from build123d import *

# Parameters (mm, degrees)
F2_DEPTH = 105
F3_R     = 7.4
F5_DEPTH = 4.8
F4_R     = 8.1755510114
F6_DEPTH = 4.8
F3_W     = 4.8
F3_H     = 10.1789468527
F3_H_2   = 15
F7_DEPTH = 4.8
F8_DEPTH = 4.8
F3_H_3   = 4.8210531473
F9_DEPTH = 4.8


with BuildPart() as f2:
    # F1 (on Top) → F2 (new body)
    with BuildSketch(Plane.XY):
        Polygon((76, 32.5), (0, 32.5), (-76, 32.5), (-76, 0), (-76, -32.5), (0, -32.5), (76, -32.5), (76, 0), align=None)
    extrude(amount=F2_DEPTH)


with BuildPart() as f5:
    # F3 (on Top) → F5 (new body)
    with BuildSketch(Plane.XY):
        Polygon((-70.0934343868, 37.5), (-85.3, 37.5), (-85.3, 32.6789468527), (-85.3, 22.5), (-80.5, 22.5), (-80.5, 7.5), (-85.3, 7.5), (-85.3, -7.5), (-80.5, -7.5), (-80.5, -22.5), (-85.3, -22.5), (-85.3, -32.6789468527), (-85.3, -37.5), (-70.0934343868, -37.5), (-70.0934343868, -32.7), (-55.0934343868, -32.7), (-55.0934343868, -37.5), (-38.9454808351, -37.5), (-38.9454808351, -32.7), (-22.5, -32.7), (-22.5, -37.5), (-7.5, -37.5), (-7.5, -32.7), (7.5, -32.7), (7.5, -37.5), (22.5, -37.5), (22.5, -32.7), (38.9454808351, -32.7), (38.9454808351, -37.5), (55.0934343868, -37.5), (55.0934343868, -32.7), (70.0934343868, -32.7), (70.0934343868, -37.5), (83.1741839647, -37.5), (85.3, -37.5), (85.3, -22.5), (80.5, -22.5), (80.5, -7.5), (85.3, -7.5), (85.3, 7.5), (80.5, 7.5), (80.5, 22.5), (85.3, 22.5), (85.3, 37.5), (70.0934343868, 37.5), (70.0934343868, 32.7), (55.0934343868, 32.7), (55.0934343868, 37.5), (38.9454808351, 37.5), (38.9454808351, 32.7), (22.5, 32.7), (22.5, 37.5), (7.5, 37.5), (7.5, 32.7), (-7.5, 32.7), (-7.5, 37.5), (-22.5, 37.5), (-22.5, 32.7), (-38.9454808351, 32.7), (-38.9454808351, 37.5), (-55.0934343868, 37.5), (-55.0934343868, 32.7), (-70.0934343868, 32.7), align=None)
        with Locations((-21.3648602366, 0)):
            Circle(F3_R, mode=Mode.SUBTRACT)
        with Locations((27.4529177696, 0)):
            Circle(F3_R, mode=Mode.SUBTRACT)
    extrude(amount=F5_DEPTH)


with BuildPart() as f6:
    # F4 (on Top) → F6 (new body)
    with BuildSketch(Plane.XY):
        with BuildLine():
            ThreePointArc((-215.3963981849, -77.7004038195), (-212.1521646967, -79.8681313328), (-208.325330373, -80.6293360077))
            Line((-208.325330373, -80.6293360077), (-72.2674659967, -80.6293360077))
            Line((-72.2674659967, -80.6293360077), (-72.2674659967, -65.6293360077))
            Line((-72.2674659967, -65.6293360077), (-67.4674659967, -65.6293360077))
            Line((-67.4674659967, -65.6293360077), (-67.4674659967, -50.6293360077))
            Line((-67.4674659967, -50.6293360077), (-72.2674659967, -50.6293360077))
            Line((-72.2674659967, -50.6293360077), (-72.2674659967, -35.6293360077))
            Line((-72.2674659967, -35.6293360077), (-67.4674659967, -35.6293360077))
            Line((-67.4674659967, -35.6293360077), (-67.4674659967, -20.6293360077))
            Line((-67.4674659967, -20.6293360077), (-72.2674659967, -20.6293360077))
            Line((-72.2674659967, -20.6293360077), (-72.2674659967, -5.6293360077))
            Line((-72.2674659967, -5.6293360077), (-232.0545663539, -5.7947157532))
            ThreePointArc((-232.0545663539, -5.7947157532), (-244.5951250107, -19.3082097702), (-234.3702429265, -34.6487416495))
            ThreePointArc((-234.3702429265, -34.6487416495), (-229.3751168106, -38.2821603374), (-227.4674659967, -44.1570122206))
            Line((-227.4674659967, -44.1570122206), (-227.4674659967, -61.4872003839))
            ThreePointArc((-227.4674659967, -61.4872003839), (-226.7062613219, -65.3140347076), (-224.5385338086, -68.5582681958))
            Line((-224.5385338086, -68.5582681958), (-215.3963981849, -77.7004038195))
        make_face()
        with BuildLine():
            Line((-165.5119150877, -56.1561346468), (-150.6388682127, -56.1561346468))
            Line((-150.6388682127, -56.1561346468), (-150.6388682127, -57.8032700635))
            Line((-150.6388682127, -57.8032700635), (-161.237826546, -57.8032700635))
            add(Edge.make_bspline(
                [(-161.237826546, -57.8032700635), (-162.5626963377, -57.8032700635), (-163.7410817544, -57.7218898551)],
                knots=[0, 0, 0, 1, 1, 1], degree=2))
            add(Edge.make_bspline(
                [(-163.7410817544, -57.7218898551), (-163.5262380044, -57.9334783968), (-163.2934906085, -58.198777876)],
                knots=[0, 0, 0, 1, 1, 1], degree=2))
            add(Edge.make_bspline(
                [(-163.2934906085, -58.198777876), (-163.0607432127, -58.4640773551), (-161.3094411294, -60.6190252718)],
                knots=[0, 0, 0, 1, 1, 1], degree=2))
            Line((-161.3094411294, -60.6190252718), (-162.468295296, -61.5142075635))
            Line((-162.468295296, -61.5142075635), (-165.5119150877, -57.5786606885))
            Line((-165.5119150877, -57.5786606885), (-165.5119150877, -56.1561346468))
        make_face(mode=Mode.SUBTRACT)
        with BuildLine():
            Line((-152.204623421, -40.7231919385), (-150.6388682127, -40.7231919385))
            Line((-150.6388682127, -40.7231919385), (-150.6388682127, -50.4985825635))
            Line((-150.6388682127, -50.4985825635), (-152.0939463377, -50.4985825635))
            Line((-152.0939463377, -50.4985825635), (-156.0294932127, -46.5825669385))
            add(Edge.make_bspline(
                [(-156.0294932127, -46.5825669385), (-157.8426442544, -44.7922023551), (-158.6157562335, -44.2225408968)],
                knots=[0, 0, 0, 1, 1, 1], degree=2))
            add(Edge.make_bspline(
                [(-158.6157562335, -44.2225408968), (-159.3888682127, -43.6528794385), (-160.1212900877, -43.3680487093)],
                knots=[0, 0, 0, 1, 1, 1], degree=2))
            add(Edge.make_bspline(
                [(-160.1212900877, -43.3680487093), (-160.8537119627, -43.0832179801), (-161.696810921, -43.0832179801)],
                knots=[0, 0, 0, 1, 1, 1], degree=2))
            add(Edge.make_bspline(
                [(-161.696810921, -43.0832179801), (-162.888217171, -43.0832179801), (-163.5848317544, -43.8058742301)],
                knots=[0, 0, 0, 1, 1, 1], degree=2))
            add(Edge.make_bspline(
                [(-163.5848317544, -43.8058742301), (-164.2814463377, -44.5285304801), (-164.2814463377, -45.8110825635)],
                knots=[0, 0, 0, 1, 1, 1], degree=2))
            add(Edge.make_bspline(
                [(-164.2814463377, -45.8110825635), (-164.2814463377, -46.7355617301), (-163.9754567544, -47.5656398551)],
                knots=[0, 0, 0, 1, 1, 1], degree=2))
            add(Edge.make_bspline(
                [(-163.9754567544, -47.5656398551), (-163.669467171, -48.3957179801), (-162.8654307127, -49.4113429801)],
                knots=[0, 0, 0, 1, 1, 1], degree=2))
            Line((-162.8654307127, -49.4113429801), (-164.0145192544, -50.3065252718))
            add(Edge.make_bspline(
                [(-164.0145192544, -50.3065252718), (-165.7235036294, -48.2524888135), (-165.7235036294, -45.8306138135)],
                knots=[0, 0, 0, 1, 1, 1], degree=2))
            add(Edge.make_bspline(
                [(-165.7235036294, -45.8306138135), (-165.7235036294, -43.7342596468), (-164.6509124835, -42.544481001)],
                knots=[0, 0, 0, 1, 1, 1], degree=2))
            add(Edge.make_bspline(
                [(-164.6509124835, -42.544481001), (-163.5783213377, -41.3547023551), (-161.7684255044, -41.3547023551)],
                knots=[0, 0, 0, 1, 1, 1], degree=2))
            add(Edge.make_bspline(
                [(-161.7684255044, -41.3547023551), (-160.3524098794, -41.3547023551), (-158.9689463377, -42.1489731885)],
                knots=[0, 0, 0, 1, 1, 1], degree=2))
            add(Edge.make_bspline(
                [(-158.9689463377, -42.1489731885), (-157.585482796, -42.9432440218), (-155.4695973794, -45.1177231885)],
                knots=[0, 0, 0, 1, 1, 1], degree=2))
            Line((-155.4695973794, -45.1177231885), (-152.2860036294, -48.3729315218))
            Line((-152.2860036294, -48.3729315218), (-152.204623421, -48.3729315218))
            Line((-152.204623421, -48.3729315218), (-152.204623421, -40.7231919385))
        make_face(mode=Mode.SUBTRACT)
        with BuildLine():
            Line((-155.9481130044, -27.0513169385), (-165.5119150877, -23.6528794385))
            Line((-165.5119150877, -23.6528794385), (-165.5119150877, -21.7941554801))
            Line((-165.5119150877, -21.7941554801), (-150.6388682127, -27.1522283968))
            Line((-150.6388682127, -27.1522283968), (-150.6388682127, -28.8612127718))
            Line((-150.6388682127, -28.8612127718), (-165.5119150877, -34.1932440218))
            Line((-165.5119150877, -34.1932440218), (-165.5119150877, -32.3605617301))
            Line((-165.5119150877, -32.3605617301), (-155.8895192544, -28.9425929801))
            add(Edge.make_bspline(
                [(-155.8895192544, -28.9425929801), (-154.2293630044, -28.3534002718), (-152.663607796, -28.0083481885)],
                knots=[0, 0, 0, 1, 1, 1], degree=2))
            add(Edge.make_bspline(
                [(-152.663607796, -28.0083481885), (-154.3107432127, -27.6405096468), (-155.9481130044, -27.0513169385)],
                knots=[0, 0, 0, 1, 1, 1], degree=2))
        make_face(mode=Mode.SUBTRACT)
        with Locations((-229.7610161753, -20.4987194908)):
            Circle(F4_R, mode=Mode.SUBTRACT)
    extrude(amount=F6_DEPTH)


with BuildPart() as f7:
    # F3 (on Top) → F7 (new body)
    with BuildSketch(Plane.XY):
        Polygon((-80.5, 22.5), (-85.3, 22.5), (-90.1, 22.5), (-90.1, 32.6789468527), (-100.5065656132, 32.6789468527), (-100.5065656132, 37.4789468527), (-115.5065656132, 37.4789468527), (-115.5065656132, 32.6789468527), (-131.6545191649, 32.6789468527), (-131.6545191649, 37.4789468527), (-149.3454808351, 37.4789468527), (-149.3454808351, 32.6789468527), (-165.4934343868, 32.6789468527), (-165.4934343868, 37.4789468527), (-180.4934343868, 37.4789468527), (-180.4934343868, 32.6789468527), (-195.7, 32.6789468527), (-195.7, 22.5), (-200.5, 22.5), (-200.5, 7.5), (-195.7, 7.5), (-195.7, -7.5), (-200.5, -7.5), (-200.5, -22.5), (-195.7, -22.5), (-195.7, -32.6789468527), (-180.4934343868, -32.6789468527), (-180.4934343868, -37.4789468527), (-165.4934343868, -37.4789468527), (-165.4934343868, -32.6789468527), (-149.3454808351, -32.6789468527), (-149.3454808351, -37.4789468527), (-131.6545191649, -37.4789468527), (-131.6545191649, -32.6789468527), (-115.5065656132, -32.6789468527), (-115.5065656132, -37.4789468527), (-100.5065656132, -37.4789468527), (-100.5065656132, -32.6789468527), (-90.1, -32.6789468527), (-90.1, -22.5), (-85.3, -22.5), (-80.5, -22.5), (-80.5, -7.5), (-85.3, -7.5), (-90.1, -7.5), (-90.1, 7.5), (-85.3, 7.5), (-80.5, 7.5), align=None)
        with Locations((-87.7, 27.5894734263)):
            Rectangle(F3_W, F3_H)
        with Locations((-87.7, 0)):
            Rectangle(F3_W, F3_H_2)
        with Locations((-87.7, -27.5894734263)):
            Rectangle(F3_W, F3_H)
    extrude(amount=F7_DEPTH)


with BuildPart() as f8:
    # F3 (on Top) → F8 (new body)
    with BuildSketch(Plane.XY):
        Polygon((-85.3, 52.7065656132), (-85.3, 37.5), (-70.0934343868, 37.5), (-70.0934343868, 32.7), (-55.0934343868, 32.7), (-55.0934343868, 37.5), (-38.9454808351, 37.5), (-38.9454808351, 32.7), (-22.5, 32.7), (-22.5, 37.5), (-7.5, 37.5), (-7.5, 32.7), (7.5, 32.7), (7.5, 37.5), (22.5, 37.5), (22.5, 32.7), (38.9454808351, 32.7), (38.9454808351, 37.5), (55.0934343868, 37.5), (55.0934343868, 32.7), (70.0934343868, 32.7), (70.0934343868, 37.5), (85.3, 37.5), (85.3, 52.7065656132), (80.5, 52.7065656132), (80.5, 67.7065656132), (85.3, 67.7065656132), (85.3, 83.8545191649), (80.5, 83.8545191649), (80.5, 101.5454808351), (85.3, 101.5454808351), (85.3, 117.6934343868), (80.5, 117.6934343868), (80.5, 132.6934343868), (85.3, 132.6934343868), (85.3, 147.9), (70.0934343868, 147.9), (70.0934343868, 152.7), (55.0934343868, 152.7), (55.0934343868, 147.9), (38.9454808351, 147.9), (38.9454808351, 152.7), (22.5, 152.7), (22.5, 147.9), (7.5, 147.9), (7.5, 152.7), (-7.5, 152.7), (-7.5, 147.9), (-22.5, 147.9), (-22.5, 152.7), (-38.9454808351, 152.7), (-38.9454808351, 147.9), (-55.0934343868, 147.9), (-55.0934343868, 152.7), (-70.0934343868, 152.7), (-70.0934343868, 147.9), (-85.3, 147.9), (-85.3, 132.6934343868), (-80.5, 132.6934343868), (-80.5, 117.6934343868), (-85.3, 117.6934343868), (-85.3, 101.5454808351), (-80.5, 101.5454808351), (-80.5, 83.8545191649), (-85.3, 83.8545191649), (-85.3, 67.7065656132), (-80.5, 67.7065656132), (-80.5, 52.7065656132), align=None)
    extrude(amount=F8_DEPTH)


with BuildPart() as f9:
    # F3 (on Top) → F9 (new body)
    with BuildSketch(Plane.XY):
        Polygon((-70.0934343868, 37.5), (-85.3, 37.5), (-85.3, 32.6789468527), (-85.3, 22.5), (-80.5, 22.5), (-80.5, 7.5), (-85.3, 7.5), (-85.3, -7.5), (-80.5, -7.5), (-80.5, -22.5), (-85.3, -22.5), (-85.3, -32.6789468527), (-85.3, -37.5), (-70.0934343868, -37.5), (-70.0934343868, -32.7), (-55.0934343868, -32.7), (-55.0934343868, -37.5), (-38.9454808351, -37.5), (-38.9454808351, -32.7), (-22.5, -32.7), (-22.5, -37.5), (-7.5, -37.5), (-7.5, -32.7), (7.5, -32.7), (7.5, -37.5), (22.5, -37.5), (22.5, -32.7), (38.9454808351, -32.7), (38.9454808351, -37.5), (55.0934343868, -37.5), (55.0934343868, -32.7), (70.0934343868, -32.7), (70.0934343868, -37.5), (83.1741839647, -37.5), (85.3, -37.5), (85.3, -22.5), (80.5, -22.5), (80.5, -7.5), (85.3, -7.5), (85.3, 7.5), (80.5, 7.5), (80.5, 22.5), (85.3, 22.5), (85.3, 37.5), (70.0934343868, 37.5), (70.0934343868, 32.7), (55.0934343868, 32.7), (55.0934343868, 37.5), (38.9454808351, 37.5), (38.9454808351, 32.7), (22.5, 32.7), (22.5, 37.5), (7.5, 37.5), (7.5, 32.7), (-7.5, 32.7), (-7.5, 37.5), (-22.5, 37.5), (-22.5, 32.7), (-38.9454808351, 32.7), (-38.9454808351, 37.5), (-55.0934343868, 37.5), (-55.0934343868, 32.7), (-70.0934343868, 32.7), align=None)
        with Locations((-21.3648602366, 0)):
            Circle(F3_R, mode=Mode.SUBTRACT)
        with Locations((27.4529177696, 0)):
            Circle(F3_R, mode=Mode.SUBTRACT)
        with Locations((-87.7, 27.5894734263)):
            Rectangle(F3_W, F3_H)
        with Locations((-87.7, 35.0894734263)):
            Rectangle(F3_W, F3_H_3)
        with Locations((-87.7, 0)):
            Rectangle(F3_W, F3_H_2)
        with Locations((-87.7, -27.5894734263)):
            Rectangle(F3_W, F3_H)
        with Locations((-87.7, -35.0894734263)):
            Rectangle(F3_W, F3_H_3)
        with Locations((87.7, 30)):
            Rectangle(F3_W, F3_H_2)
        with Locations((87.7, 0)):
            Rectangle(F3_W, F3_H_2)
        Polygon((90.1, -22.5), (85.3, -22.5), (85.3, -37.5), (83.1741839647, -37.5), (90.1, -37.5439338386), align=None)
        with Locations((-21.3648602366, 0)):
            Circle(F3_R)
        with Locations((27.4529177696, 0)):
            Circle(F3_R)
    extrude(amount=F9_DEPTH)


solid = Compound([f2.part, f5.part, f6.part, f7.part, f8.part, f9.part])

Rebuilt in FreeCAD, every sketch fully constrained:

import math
import FreeCAD as App
import Part
import Sketcher
Q = App.Units.Quantity


def add_polygon(sketch, points):
    """Adds a closed chain of lines whose ends are joined by coincident constraints."""
    first, n = sketch.GeometryCount, len(points)
    for a, b in zip(points, points[1:] + points[:1]):
        sketch.addGeometry(Part.LineSegment(App.Vector(*a, 0), App.Vector(*b, 0)), False)
    for i in range(n):
        sketch.addConstraint(Sketcher.Constraint("Coincident", first + i, 2, first + (i + 1) % n, 1))

doc = App.newDocument("Part")
body = doc.addObject("PartDesign::Body", "Body")

# Sketch on XY plane
sketch1 = doc.addObject("Sketcher::SketchObject", "Sketch")
body.addObject(sketch1)
sketch1.AttachmentSupport = (doc.XY_Plane, [""])
sketch1.MapMode = "FlatFace"
add_polygon(sketch1, [(76, 32), (-76, 32), (-76, -32), (76, -32)])  # lines 0-3
sketch1.addConstraint([
    Sketcher.Constraint("Horizontal", 0),
    Sketcher.Constraint("Vertical", 1),
    Sketcher.Constraint("Horizontal", 2),
    Sketcher.Constraint("Vertical", 3),
    Sketcher.Constraint("Symmetric", 0, 2, 2, 2, -1, 1),
    Sketcher.Constraint("DistanceX", 0, 2, 0, 1, 152.0),
    Sketcher.Constraint("DistanceY", 1, 2, 1, 1, 65.0),
])
pad1 = doc.addObject("PartDesign::Pad", "Pad")
body.addObject(pad1)
pad1.Profile = sketch1
pad1.Length = 105
body2 = doc.addObject("PartDesign::Body", "Body001")

# Sketch on XY plane
sketch2 = doc.addObject("Sketcher::SketchObject", "Sketch001")
body2.addObject(sketch2)
sketch2.AttachmentSupport = (doc.getObject("XY_Plane001"), [""])
sketch2.MapMode = "FlatFace"
add_polygon(sketch2, [(-70.1, 37.5), (-85.3, 37.5), (-85.3, 22.5), (-80.5, 22.5), (-80.5, 7.5), (-85.3, 7.5), (-85.3, -7.5), (-80.5, -7.5), (-80.5, -22.5), (-85.3, -22.5), (-85.3, -37.5), (-70.1, -37.5), (-70.1, -32.7), (-55.1, -32.7), (-55.1, -37.5), (-38.9, -37.5), (-38.9, -32.7), (-22.5, -32.7), (-22.5, -37.5), (-7.5, -37.5), (-7.5, -32.7), (7.5, -32.7), (7.5, -37.5), (22.5, -37.5), (22.5, -32.7), (38.9, -32.7), (38.9, -37.5), (55.1, -37.5), (55.1, -32.7), (70.1, -32.7), (70.1, -37.5), (85.3, -37.5), (85.3, -22.5), (80.5, -22.5), (80.5, -7.5), (85.3, -7.5), (85.3, 7.5), (80.5, 7.5), (80.5, 22.5), (85.3, 22.5), (85.3, 37.5), (70.1, 37.5), (70.1, 32.7), (55.1, 32.7), (55.1, 37.5), (38.9, 37.5), (38.9, 32.7), (22.5, 32.7), (22.5, 37.5), (7.5, 37.5), (7.5, 32.7), (-7.5, 32.7), (-7.5, 37.5), (-22.5, 37.5), (-22.5, 32.7), (-38.9, 32.7), (-38.9, 37.5), (-55.1, 37.5), (-55.1, 32.7), (-70.1, 32.7)])  # lines 0-59
sketch2.addGeometry(Part.Circle(App.Vector(-21.4, 0, 0), App.Vector(0, 0, 1), 7.4), False)  # 60
sketch2.addGeometry(Part.Circle(App.Vector(27.5, 0, 0), App.Vector(0, 0, 1), 7.4), False)  # 61
sketch2.addConstraint([
    Sketcher.Constraint("Horizontal", 0),
    Sketcher.Constraint("Vertical", 1),
    Sketcher.Constraint("Horizontal", 2),
    Sketcher.Constraint("Vertical", 3),
    Sketcher.Constraint("Horizontal", 4),
    Sketcher.Constraint("Vertical", 5),
    Sketcher.Constraint("Horizontal", 6),
    Sketcher.Constraint("Vertical", 7),
    Sketcher.Constraint("Horizontal", 8),
    Sketcher.Constraint("Vertical", 9),
    Sketcher.Constraint("Horizontal", 10),
    Sketcher.Constraint("Vertical", 11),
    Sketcher.Constraint("Horizontal", 12),
    Sketcher.Constraint("Vertical", 13),
    Sketcher.Constraint("Horizontal", 14),
    Sketcher.Constraint("Vertical", 15),
    Sketcher.Constraint("Horizontal", 16),
    Sketcher.Constraint("Vertical", 17),
    Sketcher.Constraint("Horizontal", 18),
    Sketcher.Constraint("Vertical", 19),
    Sketcher.Constraint("Horizontal", 20),
    Sketcher.Constraint("Vertical", 21),
    Sketcher.Constraint("Horizontal", 22),
    Sketcher.Constraint("Vertical", 23),
    Sketcher.Constraint("Horizontal", 24),
    Sketcher.Constraint("Vertical", 25),
    Sketcher.Constraint("Horizontal", 26),
    Sketcher.Constraint("Vertical", 27),
    Sketcher.Constraint("Horizontal", 28),
    Sketcher.Constraint("Vertical", 29),
    Sketcher.Constraint("Horizontal", 30),
    Sketcher.Constraint("Vertical", 31),
    Sketcher.Constraint("Horizontal", 32),
    Sketcher.Constraint("Vertical", 33),
    Sketcher.Constraint("Horizontal", 34),
    Sketcher.Constraint("Vertical", 35),
    Sketcher.Constraint("Horizontal", 36),
    Sketcher.Constraint("Vertical", 37),
    Sketcher.Constraint("Horizontal", 38),
    Sketcher.Constraint("Vertical", 39),
    Sketcher.Constraint("Horizontal", 40),
    Sketcher.Constraint("Vertical", 41),
    Sketcher.Constraint("Horizontal", 42),
    Sketcher.Constraint("Vertical", 43),
    Sketcher.Constraint("Horizontal", 44),
    Sketcher.Constraint("Vertical", 45),
    Sketcher.Constraint("Horizontal", 46),
    Sketcher.Constraint("Vertical", 47),
    Sketcher.Constraint("Horizontal", 48),
    Sketcher.Constraint("Vertical", 49),
    Sketcher.Constraint("Horizontal", 50),
    Sketcher.Constraint("Vertical", 51),
    Sketcher.Constraint("Horizontal", 52),
    Sketcher.Constraint("Vertical", 53),
    Sketcher.Constraint("Horizontal", 54),
    Sketcher.Constraint("Vertical", 55),
    Sketcher.Constraint("Horizontal", 56),
    Sketcher.Constraint("Vertical", 57),
    Sketcher.Constraint("Horizontal", 58),
    Sketcher.Constraint("Vertical", 59),
    Sketcher.Constraint("Equal", 60, 61),
    Sketcher.Constraint("Symmetric", 0, 2, 30, 2, -1, 1),
    Sketcher.Constraint("Symmetric", 2, 2, 32, 2, -1, 1),
    Sketcher.Constraint("Symmetric", 4, 2, 34, 2, -1, 1),
    Sketcher.Constraint("Symmetric", 6, 2, 36, 2, -1, 1),
    Sketcher.Constraint("Symmetric", 8, 2, 38, 2, -1, 1),
    Sketcher.Constraint("Symmetric", 10, 2, 40, 2, -1, 1),
    Sketcher.Constraint("Symmetric", 12, 2, 42, 2, -1, 1),
    Sketcher.Constraint("Symmetric", 14, 2, 44, 2, -1, 1),
    Sketcher.Constraint("Symmetric", 16, 2, 46, 2, -1, 1),
    Sketcher.Constraint("Symmetric", 18, 2, 48, 2, -1, 1),
    Sketcher.Constraint("Symmetric", 20, 2, 50, 2, -1, 1),
    Sketcher.Constraint("Symmetric", 22, 2, 52, 2, -1, 1),
    Sketcher.Constraint("Symmetric", 24, 2, 54, 2, -1, 1),
    Sketcher.Constraint("Symmetric", 26, 2, 56, 2, -1, 1),
    Sketcher.Constraint("Symmetric", 28, 2, 58, 2, -1, 1),
    Sketcher.Constraint("Symmetric", 18, 2, 21, 2, -2),
    Sketcher.Constraint("Symmetric", 16, 2, 23, 2, -2),
    Sketcher.Constraint("Symmetric", 14, 2, 25, 2, -2),
    Sketcher.Constraint("Symmetric", 12, 2, 27, 2, -2),
    Sketcher.Constraint("Symmetric", 10, 2, 29, 2, -2),
    Sketcher.Constraint("Symmetric", 8, 2, 31, 2, -2),
    Sketcher.Constraint("Symmetric", 6, 2, 33, 2, -2),
    Sketcher.Constraint("PointOnObject", 60, 3, -1),
    Sketcher.Constraint("PointOnObject", 61, 3, -1),
    Sketcher.Constraint("Horizontal", 10, 2, 13, 2),
    Sketcher.Constraint("Horizontal", 12, 2, 15, 2),
    Sketcher.Constraint("Horizontal", 14, 2, 17, 2),
    Sketcher.Constraint("Horizontal", 16, 2, 19, 2),
    Sketcher.Constraint("Vertical", 1, 2, 4, 2),
    Sketcher.Constraint("Equal", 12, 18),
    Sketcher.Constraint("Equal", 18, 20),
    Sketcher.Constraint("Equal", 58, 1),
    Sketcher.Constraint("Equal", 1, 3),
    Sketcher.Constraint("Equal", 3, 5),
    Sketcher.Constraint("Equal", 38, 11),
    Sketcher.Constraint("Diameter", 60, 14.8),
    Sketcher.Constraint("DistanceX", 12, 1, 12, 2, 15.0),
    Sketcher.Constraint("DistanceX", 2, 1, 2, 2, 4.8),
    Sketcher.Constraint("DistanceX", 0, 2, -1, 1, 85.3),
    Sketcher.Constraint("DistanceX", 16, 1, 16, 2, 16.445481),
    Sketcher.Constraint("DistanceX", 0, 2, 0, 1, 15.206566),
    Sketcher.Constraint("DistanceX", 60, 3, -1, 1, 21.36486),
    Sketcher.Constraint("DistanceX", -1, 1, 61, 3, 27.452918),
])
pad2 = doc.addObject("PartDesign::Pad", "Pad001")
body2.addObject(pad2)
pad2.Profile = sketch2
pad2.Length = 4.8
body3 = doc.addObject("PartDesign::Body", "Body002")

# Sketch on XY plane
sketch3 = doc.addObject("Sketcher::SketchObject", "Sketch002")
body3.addObject(sketch3)
sketch3.AttachmentSupport = (doc.getObject("XY_Plane002"), [""])
sketch3.MapMode = "FlatFace"
sketch3.addGeometry([
    Part.ArcOfCircle(Part.Circle(App.Vector(-208.32533, -70.629336, 0), App.Vector(0, 0, 1), 10), math.radians(-135), math.radians(-90)),  # 0
    Part.LineSegment(App.Vector(-208.32533, -80.629336, 0), App.Vector(-72.267466, -80.629336, 0)),  # 1
    Part.LineSegment(App.Vector(-72.267466, -80.629336, 0), App.Vector(-72.267466, -65.629336, 0)),  # 2
    Part.LineSegment(App.Vector(-72.267466, -65.629336, 0), App.Vector(-67.467466, -65.629336, 0)),  # 3
    Part.LineSegment(App.Vector(-67.467466, -65.629336, 0), App.Vector(-67.467466, -50.629336, 0)),  # 4
    Part.LineSegment(App.Vector(-67.467466, -50.629336, 0), App.Vector(-72.267466, -50.629336, 0)),  # 5
    Part.LineSegment(App.Vector(-72.267466, -50.629336, 0), App.Vector(-72.267466, -35.629336, 0)),  # 6
    Part.LineSegment(App.Vector(-72.267466, -35.629336, 0), App.Vector(-67.467466, -35.629336, 0)),  # 7
    Part.LineSegment(App.Vector(-67.467466, -35.629336, 0), App.Vector(-67.467466, -20.629336, 0)),  # 8
    Part.LineSegment(App.Vector(-67.467466, -20.629336, 0), App.Vector(-72.267466, -20.629336, 0)),  # 9
    Part.LineSegment(App.Vector(-72.267466, -20.629336, 0), App.Vector(-72.267466, -5.629336, 0)),  # 10
    Part.LineSegment(App.Vector(-72.267466, -5.629336, 0), App.Vector(-232.054566, -5.794716, 0)),  # 11
    Part.ArcOfCircle(Part.Circle(App.Vector(-229.761016, -20.498719, 0), App.Vector(0, 0, 1), 14.881804), math.radians(98.865632), math.radians(251.957504)),  # 12
    Part.ArcOfCircle(Part.Circle(App.Vector(-237.467466, -44.157012, 0), App.Vector(0, 0, 1), 10), math.radians(0), math.radians(71.957504)),  # 13
    Part.LineSegment(App.Vector(-227.467466, -44.157012, 0), App.Vector(-227.467466, -61.4872, 0)),  # 14
    Part.ArcOfCircle(Part.Circle(App.Vector(-217.467466, -61.4872, 0), App.Vector(0, 0, 1), 10), math.radians(180), math.radians(225)),  # 15
    Part.LineSegment(App.Vector(-224.538534, -68.558268, 0), App.Vector(-215.396398, -77.700404, 0)),  # 16
    Part.LineSegment(App.Vector(-165.511915, -57.578661, 0), App.Vector(-165.511915, -56.156135, 0)),  # 17
    Part.LineSegment(App.Vector(-165.511915, -56.156135, 0), App.Vector(-150.638868, -56.156135, 0)),  # 18
    Part.LineSegment(App.Vector(-150.638868, -56.156135, 0), App.Vector(-150.638868, -57.80327, 0)),  # 19
    Part.LineSegment(App.Vector(-150.638868, -57.80327, 0), App.Vector(-161.237827, -57.80327, 0)),  # 20
    Part.BSplineCurve([App.Vector(-161.237827, -57.80327, 0), App.Vector(-162.562696, -57.80327, 0), App.Vector(-163.741082, -57.72189, 0)], [3, 3], [0, 1], False, 2, [1, 1, 1], False),  # 21
    Part.BSplineCurve([App.Vector(-163.741082, -57.72189, 0), App.Vector(-163.526238, -57.933478, 0), App.Vector(-163.293491, -58.198778, 0)], [3, 3], [0, 1], False, 2, [1, 1, 1], False),  # 22
    Part.BSplineCurve([App.Vector(-163.293491, -58.198778, 0), App.Vector(-163.060743, -58.464077, 0), App.Vector(-161.309441, -60.619025, 0)], [3, 3], [0, 1], False, 2, [1, 1, 1], False),  # 23
    Part.LineSegment(App.Vector(-161.309441, -60.619025, 0), App.Vector(-162.468295, -61.514208, 0)),  # 24
    Part.LineSegment(App.Vector(-162.468295, -61.514208, 0), App.Vector(-165.511915, -57.578661, 0)),  # 25
    Part.LineSegment(App.Vector(-152.204623, -48.372932, 0), App.Vector(-152.204623, -40.723192, 0)),  # 26
    Part.LineSegment(App.Vector(-152.204623, -40.723192, 0), App.Vector(-150.638868, -40.723192, 0)),  # 27
    Part.LineSegment(App.Vector(-150.638868, -40.723192, 0), App.Vector(-150.638868, -50.498583, 0)),  # 28
    Part.LineSegment(App.Vector(-150.638868, -50.498583, 0), App.Vector(-152.093946, -50.498583, 0)),  # 29
    Part.LineSegment(App.Vector(-152.093946, -50.498583, 0), App.Vector(-156.029493, -46.582567, 0)),  # 30
    Part.BSplineCurve([App.Vector(-156.029493, -46.582567, 0), App.Vector(-157.842644, -44.792202, 0), App.Vector(-158.615756, -44.222541, 0)], [3, 3], [0, 1], False, 2, [1, 1, 1], False),  # 31
    Part.BSplineCurve([App.Vector(-158.615756, -44.222541, 0), App.Vector(-159.388868, -43.652879, 0), App.Vector(-160.853712, -43.083218, 0), App.Vector(-162.888217, -43.083218, 0), App.Vector(-163.584832, -43.805874, 0)], [3, 1, 1, 3], [0, 1, 2, 3.413127413], False, 2, [1, 1, 1, 1, 1], False),  # 32
    Part.BSplineCurve([App.Vector(-163.584832, -43.805874, 0), App.Vector(-164.281446, -44.52853, 0), App.Vector(-164.281446, -46.735562, 0), App.Vector(-163.975457, -47.56564, 0)], [3, 1, 3], [0, 1, 1.720812183], False, 2, [1, 1, 1, 1], False),  # 33
    Part.BSplineCurve([App.Vector(-163.975457, -47.56564, 0), App.Vector(-163.669467, -48.395718, 0), App.Vector(-162.865431, -49.411343, 0)], [3, 3], [0, 1], False, 2, [1, 1, 1], False),  # 34
    Part.LineSegment(App.Vector(-162.865431, -49.411343, 0), App.Vector(-164.014519, -50.306525, 0)),  # 35
    Part.BSplineCurve([App.Vector(-164.014519, -50.306525, 0), App.Vector(-165.723504, -48.252489, 0), App.Vector(-165.723504, -43.73426, 0), App.Vector(-164.650912, -42.544481, 0)], [3, 1, 3], [0, 1, 1.865591398], False, 2, [1, 1, 1, 1], False),  # 36
    Part.BSplineCurve([App.Vector(-164.650912, -42.544481, 0), App.Vector(-163.578321, -41.354702, 0), App.Vector(-160.35241, -41.354702, 0), App.Vector(-158.968946, -42.148973, 0)], [3, 1, 3], [0, 1, 1.782374101], False, 2, [1, 1, 1, 1], False),  # 37
    Part.BSplineCurve([App.Vector(-158.968946, -42.148973, 0), App.Vector(-157.585483, -42.943244, 0), App.Vector(-155.469597, -45.117723, 0)], [3, 3], [0, 1], False, 2, [1, 1, 1], False),  # 38
    Part.LineSegment(App.Vector(-155.469597, -45.117723, 0), App.Vector(-152.286004, -48.372932, 0)),  # 39
    Part.LineSegment(App.Vector(-152.286004, -48.372932, 0), App.Vector(-152.204623, -48.372932, 0)),  # 40
    Part.Circle(App.Vector(-229.761016, -20.498719, 0), App.Vector(0, 0, 1), 8.175551),  # 41
    Part.BSplineCurve([App.Vector(-152.663608, -28.008348, 0), App.Vector(-154.310743, -27.64051, 0), App.Vector(-155.948113, -27.051317, 0)], [3, 3], [0, 1], False, 2, [1, 1, 1], False),  # 42
    Part.LineSegment(App.Vector(-155.948113, -27.051317, 0), App.Vector(-165.511915, -23.652879, 0)),  # 43
    Part.LineSegment(App.Vector(-165.511915, -23.652879, 0), App.Vector(-165.511915, -21.794155, 0)),  # 44
    Part.LineSegment(App.Vector(-165.511915, -21.794155, 0), App.Vector(-150.638868, -27.152228, 0)),  # 45
    Part.LineSegment(App.Vector(-150.638868, -27.152228, 0), App.Vector(-150.638868, -28.861213, 0)),  # 46
    Part.LineSegment(App.Vector(-150.638868, -28.861213, 0), App.Vector(-165.511915, -34.193244, 0)),  # 47
    Part.LineSegment(App.Vector(-165.511915, -34.193244, 0), App.Vector(-165.511915, -32.360562, 0)),  # 48
    Part.LineSegment(App.Vector(-165.511915, -32.360562, 0), App.Vector(-155.889519, -28.942593, 0)),  # 49
    Part.BSplineCurve([App.Vector(-155.889519, -28.942593, 0), App.Vector(-154.229363, -28.3534, 0), App.Vector(-152.663608, -28.008348, 0)], [3, 3], [0, 1], False, 2, [1, 1, 1], False),  # 50
], False)
sketch3.addConstraint([
    Sketcher.Constraint("Block", 21),
    Sketcher.Constraint("Block", 22),
    Sketcher.Constraint("Block", 23),
    Sketcher.Constraint("Block", 31),
    Sketcher.Constraint("Block", 32),
    Sketcher.Constraint("Block", 33),
    Sketcher.Constraint("Block", 34),
    Sketcher.Constraint("Block", 36),
    Sketcher.Constraint("Block", 37),
    Sketcher.Constraint("Block", 38),
    Sketcher.Constraint("Block", 42),
    Sketcher.Constraint("Block", 50),
    Sketcher.Constraint("Tangent", 0, 2, 1, 1),
    Sketcher.Constraint("Coincident", 1, 2, 2, 1),
    Sketcher.Constraint("Coincident", 2, 2, 3, 1),
    Sketcher.Constraint("Coincident", 3, 2, 4, 1),
    Sketcher.Constraint("Coincident", 4, 2, 5, 1),
    Sketcher.Constraint("Coincident", 5, 2, 6, 1),
    Sketcher.Constraint("Coincident", 6, 2, 7, 1),
    Sketcher.Constraint("Coincident", 7, 2, 8, 1),
    Sketcher.Constraint("Coincident", 8, 2, 9, 1),
    Sketcher.Constraint("Coincident", 9, 2, 10, 1),
    Sketcher.Constraint("Coincident", 10, 2, 11, 1),
    Sketcher.Constraint("Coincident", 11, 2, 12, 1),
    Sketcher.Constraint("Tangent", 12, 2, 13, 2),
    Sketcher.Constraint("Tangent", 13, 1, 14, 1),
    Sketcher.Constraint("Tangent", 14, 2, 15, 1),
    Sketcher.Constraint("Tangent", 15, 2, 16, 1),
    Sketcher.Constraint("Tangent", 16, 2, 0, 1),
    Sketcher.Constraint("Coincident", 17, 2, 18, 1),
    Sketcher.Constraint("Coincident", 18, 2, 19, 1),
    Sketcher.Constraint("Coincident", 19, 2, 20, 1),
    Sketcher.Constraint("Coincident", 20, 2, 21, 1),
    Sketcher.Constraint("Coincident", 23, 2, 24, 1),
    Sketcher.Constraint("Coincident", 24, 2, 25, 1),
    Sketcher.Constraint("Coincident", 25, 2, 17, 1),
    Sketcher.Constraint("Coincident", 26, 2, 27, 1),
    Sketcher.Constraint("Coincident", 27, 2, 28, 1),
    Sketcher.Constraint("Coincident", 28, 2, 29, 1),
    Sketcher.Constraint("Coincident", 29, 2, 30, 1),
    Sketcher.Constraint("Coincident", 30, 2, 31, 1),
    Sketcher.Constraint("Coincident", 34, 2, 35, 1),
    Sketcher.Constraint("Coincident", 35, 2, 36, 1),
    Sketcher.Constraint("Coincident", 38, 2, 39, 1),
    Sketcher.Constraint("Coincident", 39, 2, 40, 1),
    Sketcher.Constraint("Coincident", 40, 2, 26, 1),
    Sketcher.Constraint("Coincident", 42, 2, 43, 1),
    Sketcher.Constraint("Coincident", 43, 2, 44, 1),
    Sketcher.Constraint("Coincident", 44, 2, 45, 1),
    Sketcher.Constraint("Coincident", 45, 2, 46, 1),
    Sketcher.Constraint("Coincident", 46, 2, 47, 1),
    Sketcher.Constraint("Coincident", 47, 2, 48, 1),
    Sketcher.Constraint("Coincident", 48, 2, 49, 1),
    Sketcher.Constraint("Coincident", 49, 2, 50, 1),
    Sketcher.Constraint("Horizontal", 1),
    Sketcher.Constraint("Vertical", 2),
    Sketcher.Constraint("Horizontal", 3),
    Sketcher.Constraint("Vertical", 4),
    Sketcher.Constraint("Horizontal", 5),
    Sketcher.Constraint("Vertical", 6),
    Sketcher.Constraint("Horizontal", 7),
    Sketcher.Constraint("Vertical", 8),
    Sketcher.Constraint("Horizontal", 9),
    Sketcher.Constraint("Vertical", 10),
    Sketcher.Constraint("Vertical", 14),
    Sketcher.Constraint("Vertical", 17),
    Sketcher.Constraint("Horizontal", 18),
    Sketcher.Constraint("Vertical", 19),
    Sketcher.Constraint("Horizontal", 20),
    Sketcher.Constraint("Vertical", 26),
    Sketcher.Constraint("Horizontal", 27),
    Sketcher.Constraint("Vertical", 28),
    Sketcher.Constraint("Horizontal", 29),
    Sketcher.Constraint("Horizontal", 40),
    Sketcher.Constraint("Vertical", 44),
    Sketcher.Constraint("Vertical", 46),
    Sketcher.Constraint("Vertical", 48),
    Sketcher.Constraint("Coincident", 41, 3, 12, 3),
    Sketcher.Constraint("Equal", 0, 13),
    Sketcher.Constraint("Equal", 13, 15),
    Sketcher.Constraint("Vertical", 2, 2, 5, 2),
    Sketcher.Constraint("Vertical", 4, 2, 7, 2),
    Sketcher.Constraint("Vertical", 6, 2, 9, 2),
    Sketcher.Constraint("Vertical", 19, 2, 27, 2),
    Sketcher.Constraint("Vertical", 25, 2, 43, 2),
    Sketcher.Constraint("Vertical", 28, 2, 45, 2),
    Sketcher.Constraint("Vertical", 44, 2, 47, 2),
    Sketcher.Constraint("Equal", 2, 4),
    Sketcher.Constraint("Equal", 4, 6),
    Sketcher.Constraint("Equal", 6, 8),
    Sketcher.Constraint("Equal", 8, 10),
    Sketcher.Constraint("Radius", 0, 10.0),
    Sketcher.Constraint("DistanceY", 2, 1, 2, 2, 15.0),
    Sketcher.Constraint("Angle", 16, Q("-45 deg")),
    Sketcher.Constraint("DistanceX", 3, 1, 3, 2, 4.8),
    Sketcher.Constraint("DistanceX", 15, 3, 3, 2, 150.0),
    Sketcher.Constraint("Diameter", 41, 16.351102),
    Sketcher.Constraint("Radius", 12, 14.881804),
    Sketcher.Constraint("DistanceX", 20, 2, 20, 1, 10.598958),
    Sketcher.Constraint("DistanceX", 29, 2, 29, 1, 1.455078),
    Sketcher.Constraint("DistanceX", 40, 1, 40, 2, 0.08138),
    Sketcher.Constraint("DistanceY", 14, 2, 14, 1, 17.330188),
    Sketcher.Constraint("DistanceY", 26, 1, 26, 2, 7.64974),
    Sketcher.Constraint("DistanceY", 28, 2, 28, 1, 9.775391),
    Sketcher.Constraint("DistanceY", 15, 3, -1, 1, 61.4872),
    Sketcher.Constraint("DistanceX", 16, 2, -1, 1, 215.396398),
    Sketcher.Constraint("DistanceX", 13, 3, 11, 2, 5.4129),
    Sketcher.Constraint("DistanceY", 0, 3, 17, 2, 14.473201),
    Sketcher.Constraint("Distance", 24, 1.464341),
    Sketcher.Constraint("Distance", 30, 5.55191),
    Sketcher.Constraint("Distance", 47, 15.799939),
    Sketcher.Constraint("DistanceX", 1, 1, 1, 2, 136.057864),
    Sketcher.Constraint("DistanceX", 18, 1, 18, 2, 14.873047),
    Sketcher.Constraint("DistanceX", 27, 1, 27, 2, 1.565755),
    Sketcher.Constraint("DistanceY", 17, 1, 17, 2, 1.422526),
    Sketcher.Constraint("DistanceY", 44, 1, 44, 2, 1.858724),
    Sketcher.Constraint("DistanceY", 46, 2, 46, 1, 1.708984),
    Sketcher.Constraint("DistanceY", 48, 1, 48, 2, 1.832682),
    Sketcher.Constraint("DistanceY", 12, 3, -1, 1, 20.498719),
    Sketcher.Constraint("DistanceY", 43, 2, -1, 1, 23.652879),
    Sketcher.Constraint("DistanceY", 45, 2, -1, 1, 27.152228),
    Sketcher.Constraint("DistanceX", 24, 2, 20, 2, 1.230469),
])
pad3 = doc.addObject("PartDesign::Pad", "Pad002")
body3.addObject(pad3)
pad3.Profile = sketch3
pad3.Length = 4.8
body4 = doc.addObject("PartDesign::Body", "Body003")

# Sketch on XY plane
sketch4 = doc.addObject("Sketcher::SketchObject", "Sketch003")
body4.addObject(sketch4)
sketch4.AttachmentSupport = (doc.getObject("XY_Plane003"), [""])
sketch4.MapMode = "FlatFace"
add_polygon(sketch4, [(-80.5, 22.5), (-85.3, 22.5), (-85.3, 32.7), (-90.1, 32.7), (-100.5, 32.7), (-100.5, 37.5), (-115.5, 37.5), (-115.5, 32.7), (-131.7, 32.7), (-131.7, 37.5), (-149.3, 37.5), (-149.3, 32.7), (-165.5, 32.7), (-165.5, 37.5), (-180.5, 37.5), (-180.5, 32.7), (-195.7, 32.7), (-195.7, 22.5), (-200.5, 22.5), (-200.5, 7.5), (-195.7, 7.5), (-195.7, -7.5), (-200.5, -7.5), (-200.5, -22.5), (-195.7, -22.5), (-195.7, -32.7), (-180.5, -32.7), (-180.5, -37.5), (-165.5, -37.5), (-165.5, -32.7), (-149.3, -32.7), (-149.3, -37.5), (-131.7, -37.5), (-131.7, -32.7), (-115.5, -32.7), (-115.5, -37.5), (-100.5, -37.5), (-100.5, -32.7), (-90.1, -32.7), (-85.3, -32.7), (-85.3, -22.5), (-80.5, -22.5), (-80.5, -7.5), (-85.3, -7.5), (-85.3, 7.5), (-80.5, 7.5)])  # lines 0-45
sketch4.addConstraint([
    Sketcher.Constraint("Horizontal", 0),
    Sketcher.Constraint("Vertical", 1),
    Sketcher.Constraint("Horizontal", 2),
    Sketcher.Constraint("Horizontal", 3),
    Sketcher.Constraint("Vertical", 4),
    Sketcher.Constraint("Horizontal", 5),
    Sketcher.Constraint("Vertical", 6),
    Sketcher.Constraint("Horizontal", 7),
    Sketcher.Constraint("Vertical", 8),
    Sketcher.Constraint("Horizontal", 9),
    Sketcher.Constraint("Vertical", 10),
    Sketcher.Constraint("Horizontal", 11),
    Sketcher.Constraint("Vertical", 12),
    Sketcher.Constraint("Horizontal", 13),
    Sketcher.Constraint("Vertical", 14),
    Sketcher.Constraint("Horizontal", 15),
    Sketcher.Constraint("Vertical", 16),
    Sketcher.Constraint("Horizontal", 17),
    Sketcher.Constraint("Vertical", 18),
    Sketcher.Constraint("Horizontal", 19),
    Sketcher.Constraint("Vertical", 20),
    Sketcher.Constraint("Horizontal", 21),
    Sketcher.Constraint("Vertical", 22),
    Sketcher.Constraint("Horizontal", 23),
    Sketcher.Constraint("Vertical", 24),
    Sketcher.Constraint("Horizontal", 25),
    Sketcher.Constraint("Vertical", 26),
    Sketcher.Constraint("Horizontal", 27),
    Sketcher.Constraint("Vertical", 28),
    Sketcher.Constraint("Horizontal", 29),
    Sketcher.Constraint("Vertical", 30),
    Sketcher.Constraint("Horizontal", 31),
    Sketcher.Constraint("Vertical", 32),
    Sketcher.Constraint("Horizontal", 33),
    Sketcher.Constraint("Vertical", 34),
    Sketcher.Constraint("Horizontal", 35),
    Sketcher.Constraint("Vertical", 36),
    Sketcher.Constraint("Horizontal", 37),
    Sketcher.Constraint("Horizontal", 38),
    Sketcher.Constraint("Vertical", 39),
    Sketcher.Constraint("Horizontal", 40),
    Sketcher.Constraint("Vertical", 41),
    Sketcher.Constraint("Horizontal", 42),
    Sketcher.Constraint("Vertical", 43),
    Sketcher.Constraint("Horizontal", 44),
    Sketcher.Constraint("Vertical", 45),
    Sketcher.Constraint("Symmetric", 18, 2, 21, 2, -1),
    Sketcher.Constraint("Symmetric", 16, 2, 23, 2, -1),
    Sketcher.Constraint("Symmetric", 14, 2, 25, 2, -1),
    Sketcher.Constraint("Symmetric", 12, 2, 27, 2, -1),
    Sketcher.Constraint("Symmetric", 10, 2, 29, 2, -1),
    Sketcher.Constraint("Symmetric", 8, 2, 31, 2, -1),
    Sketcher.Constraint("Symmetric", 6, 2, 33, 2, -1),
    Sketcher.Constraint("Symmetric", 4, 2, 35, 2, -1),
    Sketcher.Constraint("Symmetric", 2, 2, 37, 2, -1),
    Sketcher.Constraint("Symmetric", 0, 2, 39, 2, -1),
    Sketcher.Constraint("Symmetric", 41, 2, 44, 2, -1),
    Sketcher.Constraint("Horizontal", 3, 2, 6, 2),
    Sketcher.Constraint("Horizontal", 5, 2, 8, 2),
    Sketcher.Constraint("Horizontal", 7, 2, 10, 2),
    Sketcher.Constraint("Horizontal", 9, 2, 12, 2),
    Sketcher.Constraint("Horizontal", 11, 2, 14, 2),
    Sketcher.Constraint("Horizontal", 0, 2, 16, 2),
    Sketcher.Constraint("Horizontal", 21, 2, 41, 2),
    Sketcher.Constraint("Vertical", 16, 2, 19, 2),
    Sketcher.Constraint("Vertical", 39, 2, 42, 2),
    Sketcher.Constraint("Equal", 0, 2),
    Sketcher.Constraint("Equal", 7, 11),
    Sketcher.Constraint("Equal", 5, 13),
    Sketcher.Constraint("Equal", 2, 17),
    Sketcher.Constraint("Equal", 44, 4),
    Sketcher.Constraint("Equal", 35, 18),
    Sketcher.Constraint("Equal", 18, 20),
    Sketcher.Constraint("DistanceX", 5, 2, 5, 1, 15.0),
    Sketcher.Constraint("DistanceX", 0, 2, 0, 1, 4.8),
    Sketcher.Constraint("DistanceX", 0, 2, -1, 1, 85.3),
    Sketcher.Constraint("DistanceX", 15, 2, -1, 1, 195.7),
    Sketcher.Constraint("DistanceX", 9, 2, 9, 1, 17.690962),
    Sketcher.Constraint("DistanceX", 3, 2, 3, 1, 10.406566),
    Sketcher.Constraint("DistanceX", 7, 2, 7, 1, 16.147954),
    Sketcher.Constraint("DistanceY", 1, 1, 1, 2, 10.178947),
])
pad4 = doc.addObject("PartDesign::Pad", "Pad003")
body4.addObject(pad4)
pad4.Profile = sketch4
pad4.Length = 4.8
body5 = doc.addObject("PartDesign::Body", "Body004")

# Sketch on XY plane
sketch5 = doc.addObject("Sketcher::SketchObject", "Sketch004")
body5.addObject(sketch5)
sketch5.AttachmentSupport = (doc.getObject("XY_Plane004"), [""])
sketch5.MapMode = "FlatFace"
add_polygon(sketch5, [(-85.3, 52.7), (-85.3, 37.5), (-70.1, 37.5), (-70.1, 32.7), (-55.1, 32.7), (-55.1, 37.5), (-38.9, 37.5), (-38.9, 32.7), (-22.5, 32.7), (-22.5, 37.5), (-7.5, 37.5), (-7.5, 32.7), (7.5, 32.7), (7.5, 37.5), (22.5, 37.5), (22.5, 32.7), (38.9, 32.7), (38.9, 37.5), (55.1, 37.5), (55.1, 32.7), (70.1, 32.7), (70.1, 37.5), (85.3, 37.5), (85.3, 52.7), (80.5, 52.7), (80.5, 67.7), (85.3, 67.7), (85.3, 83.9), (80.5, 83.9), (80.5, 101.5), (85.3, 101.5), (85.3, 117.7), (80.5, 117.7), (80.5, 132.7), (85.3, 132.7), (85.3, 147.9), (70.1, 147.9), (70.1, 152.7), (55.1, 152.7), (55.1, 147.9), (38.9, 147.9), (38.9, 152.7), (22.5, 152.7), (22.5, 147.9), (7.5, 147.9), (7.5, 152.7), (-7.5, 152.7), (-7.5, 147.9), (-22.5, 147.9), (-22.5, 152.7), (-38.9, 152.7), (-38.9, 147.9), (-55.1, 147.9), (-55.1, 152.7), (-70.1, 152.7), (-70.1, 147.9), (-85.3, 147.9), (-85.3, 132.7), (-80.5, 132.7), (-80.5, 117.7), (-85.3, 117.7), (-85.3, 101.5), (-80.5, 101.5), (-80.5, 83.9), (-85.3, 83.9), (-85.3, 67.7), (-80.5, 67.7), (-80.5, 52.7)])  # lines 0-67
sketch5.addConstraint([
    Sketcher.Constraint("Vertical", 0),
    Sketcher.Constraint("Horizontal", 1),
    Sketcher.Constraint("Vertical", 2),
    Sketcher.Constraint("Horizontal", 3),
    Sketcher.Constraint("Vertical", 4),
    Sketcher.Constraint("Horizontal", 5),
    Sketcher.Constraint("Vertical", 6),
    Sketcher.Constraint("Horizontal", 7),
    Sketcher.Constraint("Vertical", 8),
    Sketcher.Constraint("Horizontal", 9),
    Sketcher.Constraint("Vertical", 10),
    Sketcher.Constraint("Horizontal", 11),
    Sketcher.Constraint("Vertical", 12),
    Sketcher.Constraint("Horizontal", 13),
    Sketcher.Constraint("Vertical", 14),
    Sketcher.Constraint("Horizontal", 15),
    Sketcher.Constraint("Vertical", 16),
    Sketcher.Constraint("Horizontal", 17),
    Sketcher.Constraint("Vertical", 18),
    Sketcher.Constraint("Horizontal", 19),
    Sketcher.Constraint("Vertical", 20),
    Sketcher.Constraint("Horizontal", 21),
    Sketcher.Constraint("Vertical", 22),
    Sketcher.Constraint("Horizontal", 23),
    Sketcher.Constraint("Vertical", 24),
    Sketcher.Constraint("Horizontal", 25),
    Sketcher.Constraint("Vertical", 26),
    Sketcher.Constraint("Horizontal", 27),
    Sketcher.Constraint("Vertical", 28),
    Sketcher.Constraint("Horizontal", 29),
    Sketcher.Constraint("Vertical", 30),
    Sketcher.Constraint("Horizontal", 31),
    Sketcher.Constraint("Vertical", 32),
    Sketcher.Constraint("Horizontal", 33),
    Sketcher.Constraint("Vertical", 34),
    Sketcher.Constraint("Horizontal", 35),
    Sketcher.Constraint("Vertical", 36),
    Sketcher.Constraint("Horizontal", 37),
    Sketcher.Constraint("Vertical", 38),
    Sketcher.Constraint("Horizontal", 39),
    Sketcher.Constraint("Vertical", 40),
    Sketcher.Constraint("Horizontal", 41),
    Sketcher.Constraint("Vertical", 42),
    Sketcher.Constraint("Horizontal", 43),
    Sketcher.Constraint("Vertical", 44),
    Sketcher.Constraint("Horizontal", 45),
    Sketcher.Constraint("Vertical", 46),
    Sketcher.Constraint("Horizontal", 47),
    Sketcher.Constraint("Vertical", 48),
    Sketcher.Constraint("Horizontal", 49),
    Sketcher.Constraint("Vertical", 50),
    Sketcher.Constraint("Horizontal", 51),
    Sketcher.Constraint("Vertical", 52),
    Sketcher.Constraint("Horizontal", 53),
    Sketcher.Constraint("Vertical", 54),
    Sketcher.Constraint("Horizontal", 55),
    Sketcher.Constraint("Vertical", 56),
    Sketcher.Constraint("Horizontal", 57),
    Sketcher.Constraint("Vertical", 58),
    Sketcher.Constraint("Horizontal", 59),
    Sketcher.Constraint("Vertical", 60),
    Sketcher.Constraint("Horizontal", 61),
    Sketcher.Constraint("Vertical", 62),
    Sketcher.Constraint("Horizontal", 63),
    Sketcher.Constraint("Vertical", 64),
    Sketcher.Constraint("Horizontal", 65),
    Sketcher.Constraint("Vertical", 66),
    Sketcher.Constraint("Horizontal", 67),
    Sketcher.Constraint("Symmetric", 9, 2, 12, 2, -2),
    Sketcher.Constraint("Symmetric", 7, 2, 14, 2, -2),
    Sketcher.Constraint("Symmetric", 5, 2, 16, 2, -2),
    Sketcher.Constraint("Symmetric", 3, 2, 18, 2, -2),
    Sketcher.Constraint("Symmetric", 1, 2, 20, 2, -2),
    Sketcher.Constraint("Symmetric", 43, 2, 46, 2, -2),
    Sketcher.Constraint("Symmetric", 41, 2, 48, 2, -2),
    Sketcher.Constraint("Symmetric", 39, 2, 50, 2, -2),
    Sketcher.Constraint("Symmetric", 37, 2, 52, 2, -2),
    Sketcher.Constraint("Symmetric", 35, 2, 54, 2, -2),
    Sketcher.Constraint("Symmetric", 33, 2, 56, 2, -2),
    Sketcher.Constraint("Symmetric", 31, 2, 58, 2, -2),
    Sketcher.Constraint("Symmetric", 29, 2, 60, 2, -2),
    Sketcher.Constraint("Symmetric", 27, 2, 62, 2, -2),
    Sketcher.Constraint("Symmetric", 25, 2, 64, 2, -2),
    Sketcher.Constraint("Symmetric", 23, 2, 66, 2, -2),
    Sketcher.Constraint("Horizontal", 1, 2, 4, 2),
    Sketcher.Constraint("Horizontal", 3, 2, 6, 2),
    Sketcher.Constraint("Horizontal", 5, 2, 8, 2),
    Sketcher.Constraint("Horizontal", 7, 2, 10, 2),
    Sketcher.Constraint("Horizontal", 35, 2, 38, 2),
    Sketcher.Constraint("Horizontal", 37, 2, 40, 2),
    Sketcher.Constraint("Horizontal", 39, 2, 42, 2),
    Sketcher.Constraint("Horizontal", 41, 2, 44, 2),
    Sketcher.Constraint("Vertical", 22, 2, 25, 2),
    Sketcher.Constraint("Vertical", 24, 2, 27, 2),
    Sketcher.Constraint("Vertical", 26, 2, 29, 2),
    Sketcher.Constraint("Vertical", 28, 2, 31, 2),
    Sketcher.Constraint("Vertical", 30, 2, 33, 2),
    Sketcher.Constraint("Vertical", 20, 2, 35, 2),
    Sketcher.Constraint("Vertical", 18, 2, 37, 2),
    Sketcher.Constraint("Vertical", 16, 2, 39, 2),
    Sketcher.Constraint("Vertical", 14, 2, 41, 2),
    Sketcher.Constraint("Vertical", 12, 2, 43, 2),
    Sketcher.Constraint("Vertical", 0, 2, 55, 2),
    Sketcher.Constraint("Equal", 3, 9),
    Sketcher.Constraint("Equal", 9, 11),
    Sketcher.Constraint("Equal", 55, 0),
    Sketcher.Constraint("Equal", 67, 2),
    Sketcher.Constraint("Equal", 53, 24),
    Sketcher.Constraint("Equal", 51, 26),
    Sketcher.Constraint("Equal", 26, 30),
    Sketcher.Constraint("Equal", 24, 32),
    Sketcher.Constraint("Equal", 22, 34),
    Sketcher.Constraint("Equal", 20, 36),
    Sketcher.Constraint("DistanceX", 3, 1, 3, 2, 15.0),
    Sketcher.Constraint("DistanceX", 23, 2, 23, 1, 4.8),
    Sketcher.Constraint("DistanceX", 0, 2, -1, 1, 85.3),
    Sketcher.Constraint("DistanceY", -1, 1, 0, 2, 37.5),
    Sketcher.Constraint("DistanceY", -1, 1, 34, 2, 147.9),
    Sketcher.Constraint("DistanceX", 7, 1, 7, 2, 16.445481),
    Sketcher.Constraint("DistanceX", 1, 1, 1, 2, 15.206566),
])
pad5 = doc.addObject("PartDesign::Pad", "Pad004")
body5.addObject(pad5)
pad5.Profile = sketch5
pad5.Length = 4.8
body6 = doc.addObject("PartDesign::Body", "Body005")

# Sketch on XY plane
sketch6 = doc.addObject("Sketcher::SketchObject", "Sketch005")
body6.addObject(sketch6)
sketch6.AttachmentSupport = (doc.getObject("XY_Plane005"), [""])
sketch6.MapMode = "FlatFace"
add_polygon(sketch6, [(-70.1, 37.5), (-90.1, 37.5), (-90.1, 22.5), (-85.3, 22.5), (-80.5, 22.5), (-80.5, 7.5), (-90.1, 7.5), (-90.1, -7.5), (-80.5, -7.5), (-80.5, -22.5), (-85.3, -22.5), (-90.1, -22.5), (-90.1, -37.5), (-85.3, -37.5), (-70.1, -37.5), (-70.1, -32.7), (-55.1, -32.7), (-55.1, -37.5), (-38.9, -37.5), (-38.9, -32.7), (-22.5, -32.7), (-22.5, -37.5), (-7.5, -37.5), (-7.5, -32.7), (7.5, -32.7), (7.5, -37.5), (22.5, -37.5), (22.5, -32.7), (38.9, -32.7), (38.9, -37.5), (55.1, -37.5), (55.1, -32.7), (70.1, -32.7), (70.1, -37.5), (83.2, -37.5), (90.1, -37.5), (90.1, -22.5), (80.5, -22.5), (80.5, -7.5), (90.1, -7.5), (90.1, 7.5), (80.5, 7.5), (80.5, 22.5), (90.1, 22.5), (90.1, 37.5), (70.1, 37.5), (70.1, 32.7), (55.1, 32.7), (55.1, 37.5), (38.9, 37.5), (38.9, 32.7), (22.5, 32.7), (22.5, 37.5), (7.5, 37.5), (7.5, 32.7), (-7.5, 32.7), (-7.5, 37.5), (-22.5, 37.5), (-22.5, 32.7), (-38.9, 32.7), (-38.9, 37.5), (-55.1, 37.5), (-55.1, 32.7), (-70.1, 32.7)])  # lines 0-63
sketch6.addConstraint([
    Sketcher.Constraint("Horizontal", 0),
    Sketcher.Constraint("Vertical", 1),
    Sketcher.Constraint("Horizontal", 2),
    Sketcher.Constraint("Horizontal", 3),
    Sketcher.Constraint("Vertical", 4),
    Sketcher.Constraint("Horizontal", 5),
    Sketcher.Constraint("Vertical", 6),
    Sketcher.Constraint("Horizontal", 7),
    Sketcher.Constraint("Vertical", 8),
    Sketcher.Constraint("Horizontal", 9),
    Sketcher.Constraint("Horizontal", 10),
    Sketcher.Constraint("Vertical", 11),
    Sketcher.Constraint("Horizontal", 12),
    Sketcher.Constraint("Horizontal", 13),
    Sketcher.Constraint("Vertical", 14),
    Sketcher.Constraint("Horizontal", 15),
    Sketcher.Constraint("Vertical", 16),
    Sketcher.Constraint("Horizontal", 17),
    Sketcher.Constraint("Vertical", 18),
    Sketcher.Constraint("Horizontal", 19),
    Sketcher.Constraint("Vertical", 20),
    Sketcher.Constraint("Horizontal", 21),
    Sketcher.Constraint("Vertical", 22),
    Sketcher.Constraint("Horizontal", 23),
    Sketcher.Constraint("Vertical", 24),
    Sketcher.Constraint("Horizontal", 25),
    Sketcher.Constraint("Vertical", 26),
    Sketcher.Constraint("Horizontal", 27),
    Sketcher.Constraint("Vertical", 28),
    Sketcher.Constraint("Horizontal", 29),
    Sketcher.Constraint("Vertical", 30),
    Sketcher.Constraint("Horizontal", 31),
    Sketcher.Constraint("Vertical", 32),
    Sketcher.Constraint("Horizontal", 33),
    Sketcher.Constraint("Vertical", 35),
    Sketcher.Constraint("Horizontal", 36),
    Sketcher.Constraint("Vertical", 37),
    Sketcher.Constraint("Horizontal", 38),
    Sketcher.Constraint("Vertical", 39),
    Sketcher.Constraint("Horizontal", 40),
    Sketcher.Constraint("Vertical", 41),
    Sketcher.Constraint("Horizontal", 42),
    Sketcher.Constraint("Vertical", 43),
    Sketcher.Constraint("Horizontal", 44),
    Sketcher.Constraint("Vertical", 45),
    Sketcher.Constraint("Horizontal", 46),
    Sketcher.Constraint("Vertical", 47),
    Sketcher.Constraint("Horizontal", 48),
    Sketcher.Constraint("Vertical", 49),
    Sketcher.Constraint("Horizontal", 50),
    Sketcher.Constraint("Vertical", 51),
    Sketcher.Constraint("Horizontal", 52),
    Sketcher.Constraint("Vertical", 53),
    Sketcher.Constraint("Horizontal", 54),
    Sketcher.Constraint("Vertical", 55),
    Sketcher.Constraint("Horizontal", 56),
    Sketcher.Constraint("Vertical", 57),
    Sketcher.Constraint("Horizontal", 58),
    Sketcher.Constraint("Vertical", 59),
    Sketcher.Constraint("Horizontal", 60),
    Sketcher.Constraint("Vertical", 61),
    Sketcher.Constraint("Horizontal", 62),
    Sketcher.Constraint("Vertical", 63),
    Sketcher.Constraint("Symmetric", 1, 2, 35, 2, -1, 1),
    Sketcher.Constraint("Symmetric", 4, 2, 37, 2, -1, 1),
    Sketcher.Constraint("Symmetric", 6, 2, 39, 2, -1, 1),
    Sketcher.Constraint("Symmetric", 8, 2, 41, 2, -1, 1),
    Sketcher.Constraint("Symmetric", 11, 2, 43, 2, -1, 1),
    Sketcher.Constraint("Symmetric", 14, 2, 45, 2, -1, 1),
    Sketcher.Constraint("Symmetric", 16, 2, 47, 2, -1, 1),
    Sketcher.Constraint("Symmetric", 18, 2, 49, 2, -1, 1),
    Sketcher.Constraint("Symmetric", 20, 2, 51, 2, -1, 1),
    Sketcher.Constraint("Symmetric", 22, 2, 53, 2, -1, 1),
    Sketcher.Constraint("Symmetric", 24, 2, 55, 2, -1, 1),
    Sketcher.Constraint("Symmetric", 26, 2, 57, 2, -1, 1),
    Sketcher.Constraint("Symmetric", 28, 2, 59, 2, -1, 1),
    Sketcher.Constraint("Symmetric", 30, 2, 61, 2, -1, 1),
    Sketcher.Constraint("Symmetric", 32, 2, 63, 2, -1, 1),
    Sketcher.Constraint("Symmetric", 21, 2, 24, 2, -2),
    Sketcher.Constraint("Symmetric", 19, 2, 26, 2, -2),
    Sketcher.Constraint("Symmetric", 17, 2, 28, 2, -2),
    Sketcher.Constraint("Symmetric", 15, 2, 30, 2, -2),
    Sketcher.Constraint("Symmetric", 13, 2, 32, 2, -2),
    Sketcher.Constraint("Symmetric", 10, 2, 35, 2, -2),
    Sketcher.Constraint("Symmetric", 7, 2, 37, 2, -2),
    Sketcher.Constraint("Horizontal", 13, 2, 16, 2),
    Sketcher.Constraint("Horizontal", 15, 2, 18, 2),
    Sketcher.Constraint("Horizontal", 17, 2, 20, 2),
    Sketcher.Constraint("Horizontal", 19, 2, 22, 2),
    Sketcher.Constraint("Vertical", 1, 2, 5, 2),
    Sketcher.Constraint("Vertical", 2, 2, 9, 2),
    Sketcher.Constraint("Vertical", 9, 2, 12, 2),
    Sketcher.Constraint("Equal", 2, 3),
    Sketcher.Constraint("Equal", 15, 21),
    Sketcher.Constraint("Equal", 21, 23),
    Sketcher.Constraint("Equal", 62, 1),
    Sketcher.Constraint("Equal", 1, 4),
    Sketcher.Constraint("Equal", 4, 6),
    Sketcher.Constraint("Equal", 12, 14),
    Sketcher.Constraint("DistanceX", 15, 1, 15, 2, 15.0),
    Sketcher.Constraint("DistanceX", 2, 1, 2, 2, 4.8),
    Sketcher.Constraint("DistanceX", 0, 2, -1, 1, 90.1),
    Sketcher.Constraint("DistanceX", 19, 1, 19, 2, 16.445481),
    Sketcher.Constraint("DistanceX", 33, 1, 33, 2, 13.08075),
    Sketcher.Constraint("DistanceX", 0, 2, 0, 1, 20.006566),
    Sketcher.Constraint("DistanceY", 35, 1, 35, 2, 15.043934),
])
pad6 = doc.addObject("PartDesign::Pad", "Pad005")
body6.addObject(pad6)
pad6.Profile = sketch6
pad6.Length = 4.8

doc.recompute()
